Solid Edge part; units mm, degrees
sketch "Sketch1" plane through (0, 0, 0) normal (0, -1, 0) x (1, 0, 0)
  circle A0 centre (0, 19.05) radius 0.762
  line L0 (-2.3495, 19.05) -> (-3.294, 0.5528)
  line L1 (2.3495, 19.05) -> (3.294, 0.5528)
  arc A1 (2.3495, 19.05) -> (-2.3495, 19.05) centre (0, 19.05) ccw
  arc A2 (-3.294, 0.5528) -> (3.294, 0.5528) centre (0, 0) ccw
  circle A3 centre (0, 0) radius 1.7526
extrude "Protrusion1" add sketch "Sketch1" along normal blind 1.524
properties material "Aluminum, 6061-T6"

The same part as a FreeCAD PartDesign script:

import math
import FreeCAD as App
import Part
import Sketcher
from FreeCAD import Vector
Q = App.Units.Quantity

doc = App.newDocument("Part")
body = doc.addObject("PartDesign::Body", "Body")

sketch1 = doc.addObject("Sketcher::SketchObject", "Sketch")
body.addObject(sketch1)
sketch1.AttachmentSupport = (doc.XZ_Plane, [""])
sketch1.MapMode = "FlatFace"
sketch1.addGeometry([
    Part.ArcOfCircle(Part.Circle(Vector(0, 19.05, 0), Vector(0, 0, 1), 2.3495), math.radians(0), math.radians(180)),
    Part.LineSegment(Vector(-2.3495, 19.05, 0), Vector(-3.294, 0.5528, 0)),
    Part.ArcOfCircle(Part.Circle(Vector(0, 0, 0), Vector(0, 0, 1), 3.340063), math.radians(170.473379), math.radians(369.526621)),
    Part.LineSegment(Vector(3.294, 0.5528, 0), Vector(2.3495, 19.05, 0)),
    Part.Circle(Vector(0, 0, 0), Vector(0, 0, 1), 1.7526),
    Part.Circle(Vector(0, 19.05, 0), Vector(0, 0, 1), 0.762),
], False)
sketch1.addConstraint([
    Sketcher.Constraint("Coincident", 0, 2, 1, 1),
    Sketcher.Constraint("Coincident", 1, 2, 2, 1),
    Sketcher.Constraint("Coincident", 2, 2, 3, 1),
    Sketcher.Constraint("Coincident", 3, 2, 0, 1),
    Sketcher.Constraint("Coincident", 2, 3, -1, 1),
    Sketcher.Constraint("Coincident", 4, 3, -1, 1),
    Sketcher.Constraint("Coincident", 5, 3, 0, 3),
    Sketcher.Constraint("Symmetric", 0, 2, 3, 2, -2),
    Sketcher.Constraint("Horizontal", 5, 3, 0, 2),
    Sketcher.Constraint("Horizontal", 1, 2, 2, 2),
    Sketcher.Constraint("Diameter", 5, Q("0.06 in")),
    Sketcher.Constraint("Diameter", 4, Q("0.138 in")),
    Sketcher.Constraint("Radius", 0, Q("0.0925 in")),
    Sketcher.Constraint("Radius", 2, Q("0.1315 in")),
    Sketcher.Constraint("DistanceY", -1, 1, 0, 3, Q("0.75 in")),
    Sketcher.Constraint("Distance", 1, 18.5213),
])
pad1 = doc.addObject("PartDesign::Pad", "Pad")
body.addObject(pad1)
pad1.Profile = sketch1
pad1.Length = Q("0.06 in")

doc.recompute()
